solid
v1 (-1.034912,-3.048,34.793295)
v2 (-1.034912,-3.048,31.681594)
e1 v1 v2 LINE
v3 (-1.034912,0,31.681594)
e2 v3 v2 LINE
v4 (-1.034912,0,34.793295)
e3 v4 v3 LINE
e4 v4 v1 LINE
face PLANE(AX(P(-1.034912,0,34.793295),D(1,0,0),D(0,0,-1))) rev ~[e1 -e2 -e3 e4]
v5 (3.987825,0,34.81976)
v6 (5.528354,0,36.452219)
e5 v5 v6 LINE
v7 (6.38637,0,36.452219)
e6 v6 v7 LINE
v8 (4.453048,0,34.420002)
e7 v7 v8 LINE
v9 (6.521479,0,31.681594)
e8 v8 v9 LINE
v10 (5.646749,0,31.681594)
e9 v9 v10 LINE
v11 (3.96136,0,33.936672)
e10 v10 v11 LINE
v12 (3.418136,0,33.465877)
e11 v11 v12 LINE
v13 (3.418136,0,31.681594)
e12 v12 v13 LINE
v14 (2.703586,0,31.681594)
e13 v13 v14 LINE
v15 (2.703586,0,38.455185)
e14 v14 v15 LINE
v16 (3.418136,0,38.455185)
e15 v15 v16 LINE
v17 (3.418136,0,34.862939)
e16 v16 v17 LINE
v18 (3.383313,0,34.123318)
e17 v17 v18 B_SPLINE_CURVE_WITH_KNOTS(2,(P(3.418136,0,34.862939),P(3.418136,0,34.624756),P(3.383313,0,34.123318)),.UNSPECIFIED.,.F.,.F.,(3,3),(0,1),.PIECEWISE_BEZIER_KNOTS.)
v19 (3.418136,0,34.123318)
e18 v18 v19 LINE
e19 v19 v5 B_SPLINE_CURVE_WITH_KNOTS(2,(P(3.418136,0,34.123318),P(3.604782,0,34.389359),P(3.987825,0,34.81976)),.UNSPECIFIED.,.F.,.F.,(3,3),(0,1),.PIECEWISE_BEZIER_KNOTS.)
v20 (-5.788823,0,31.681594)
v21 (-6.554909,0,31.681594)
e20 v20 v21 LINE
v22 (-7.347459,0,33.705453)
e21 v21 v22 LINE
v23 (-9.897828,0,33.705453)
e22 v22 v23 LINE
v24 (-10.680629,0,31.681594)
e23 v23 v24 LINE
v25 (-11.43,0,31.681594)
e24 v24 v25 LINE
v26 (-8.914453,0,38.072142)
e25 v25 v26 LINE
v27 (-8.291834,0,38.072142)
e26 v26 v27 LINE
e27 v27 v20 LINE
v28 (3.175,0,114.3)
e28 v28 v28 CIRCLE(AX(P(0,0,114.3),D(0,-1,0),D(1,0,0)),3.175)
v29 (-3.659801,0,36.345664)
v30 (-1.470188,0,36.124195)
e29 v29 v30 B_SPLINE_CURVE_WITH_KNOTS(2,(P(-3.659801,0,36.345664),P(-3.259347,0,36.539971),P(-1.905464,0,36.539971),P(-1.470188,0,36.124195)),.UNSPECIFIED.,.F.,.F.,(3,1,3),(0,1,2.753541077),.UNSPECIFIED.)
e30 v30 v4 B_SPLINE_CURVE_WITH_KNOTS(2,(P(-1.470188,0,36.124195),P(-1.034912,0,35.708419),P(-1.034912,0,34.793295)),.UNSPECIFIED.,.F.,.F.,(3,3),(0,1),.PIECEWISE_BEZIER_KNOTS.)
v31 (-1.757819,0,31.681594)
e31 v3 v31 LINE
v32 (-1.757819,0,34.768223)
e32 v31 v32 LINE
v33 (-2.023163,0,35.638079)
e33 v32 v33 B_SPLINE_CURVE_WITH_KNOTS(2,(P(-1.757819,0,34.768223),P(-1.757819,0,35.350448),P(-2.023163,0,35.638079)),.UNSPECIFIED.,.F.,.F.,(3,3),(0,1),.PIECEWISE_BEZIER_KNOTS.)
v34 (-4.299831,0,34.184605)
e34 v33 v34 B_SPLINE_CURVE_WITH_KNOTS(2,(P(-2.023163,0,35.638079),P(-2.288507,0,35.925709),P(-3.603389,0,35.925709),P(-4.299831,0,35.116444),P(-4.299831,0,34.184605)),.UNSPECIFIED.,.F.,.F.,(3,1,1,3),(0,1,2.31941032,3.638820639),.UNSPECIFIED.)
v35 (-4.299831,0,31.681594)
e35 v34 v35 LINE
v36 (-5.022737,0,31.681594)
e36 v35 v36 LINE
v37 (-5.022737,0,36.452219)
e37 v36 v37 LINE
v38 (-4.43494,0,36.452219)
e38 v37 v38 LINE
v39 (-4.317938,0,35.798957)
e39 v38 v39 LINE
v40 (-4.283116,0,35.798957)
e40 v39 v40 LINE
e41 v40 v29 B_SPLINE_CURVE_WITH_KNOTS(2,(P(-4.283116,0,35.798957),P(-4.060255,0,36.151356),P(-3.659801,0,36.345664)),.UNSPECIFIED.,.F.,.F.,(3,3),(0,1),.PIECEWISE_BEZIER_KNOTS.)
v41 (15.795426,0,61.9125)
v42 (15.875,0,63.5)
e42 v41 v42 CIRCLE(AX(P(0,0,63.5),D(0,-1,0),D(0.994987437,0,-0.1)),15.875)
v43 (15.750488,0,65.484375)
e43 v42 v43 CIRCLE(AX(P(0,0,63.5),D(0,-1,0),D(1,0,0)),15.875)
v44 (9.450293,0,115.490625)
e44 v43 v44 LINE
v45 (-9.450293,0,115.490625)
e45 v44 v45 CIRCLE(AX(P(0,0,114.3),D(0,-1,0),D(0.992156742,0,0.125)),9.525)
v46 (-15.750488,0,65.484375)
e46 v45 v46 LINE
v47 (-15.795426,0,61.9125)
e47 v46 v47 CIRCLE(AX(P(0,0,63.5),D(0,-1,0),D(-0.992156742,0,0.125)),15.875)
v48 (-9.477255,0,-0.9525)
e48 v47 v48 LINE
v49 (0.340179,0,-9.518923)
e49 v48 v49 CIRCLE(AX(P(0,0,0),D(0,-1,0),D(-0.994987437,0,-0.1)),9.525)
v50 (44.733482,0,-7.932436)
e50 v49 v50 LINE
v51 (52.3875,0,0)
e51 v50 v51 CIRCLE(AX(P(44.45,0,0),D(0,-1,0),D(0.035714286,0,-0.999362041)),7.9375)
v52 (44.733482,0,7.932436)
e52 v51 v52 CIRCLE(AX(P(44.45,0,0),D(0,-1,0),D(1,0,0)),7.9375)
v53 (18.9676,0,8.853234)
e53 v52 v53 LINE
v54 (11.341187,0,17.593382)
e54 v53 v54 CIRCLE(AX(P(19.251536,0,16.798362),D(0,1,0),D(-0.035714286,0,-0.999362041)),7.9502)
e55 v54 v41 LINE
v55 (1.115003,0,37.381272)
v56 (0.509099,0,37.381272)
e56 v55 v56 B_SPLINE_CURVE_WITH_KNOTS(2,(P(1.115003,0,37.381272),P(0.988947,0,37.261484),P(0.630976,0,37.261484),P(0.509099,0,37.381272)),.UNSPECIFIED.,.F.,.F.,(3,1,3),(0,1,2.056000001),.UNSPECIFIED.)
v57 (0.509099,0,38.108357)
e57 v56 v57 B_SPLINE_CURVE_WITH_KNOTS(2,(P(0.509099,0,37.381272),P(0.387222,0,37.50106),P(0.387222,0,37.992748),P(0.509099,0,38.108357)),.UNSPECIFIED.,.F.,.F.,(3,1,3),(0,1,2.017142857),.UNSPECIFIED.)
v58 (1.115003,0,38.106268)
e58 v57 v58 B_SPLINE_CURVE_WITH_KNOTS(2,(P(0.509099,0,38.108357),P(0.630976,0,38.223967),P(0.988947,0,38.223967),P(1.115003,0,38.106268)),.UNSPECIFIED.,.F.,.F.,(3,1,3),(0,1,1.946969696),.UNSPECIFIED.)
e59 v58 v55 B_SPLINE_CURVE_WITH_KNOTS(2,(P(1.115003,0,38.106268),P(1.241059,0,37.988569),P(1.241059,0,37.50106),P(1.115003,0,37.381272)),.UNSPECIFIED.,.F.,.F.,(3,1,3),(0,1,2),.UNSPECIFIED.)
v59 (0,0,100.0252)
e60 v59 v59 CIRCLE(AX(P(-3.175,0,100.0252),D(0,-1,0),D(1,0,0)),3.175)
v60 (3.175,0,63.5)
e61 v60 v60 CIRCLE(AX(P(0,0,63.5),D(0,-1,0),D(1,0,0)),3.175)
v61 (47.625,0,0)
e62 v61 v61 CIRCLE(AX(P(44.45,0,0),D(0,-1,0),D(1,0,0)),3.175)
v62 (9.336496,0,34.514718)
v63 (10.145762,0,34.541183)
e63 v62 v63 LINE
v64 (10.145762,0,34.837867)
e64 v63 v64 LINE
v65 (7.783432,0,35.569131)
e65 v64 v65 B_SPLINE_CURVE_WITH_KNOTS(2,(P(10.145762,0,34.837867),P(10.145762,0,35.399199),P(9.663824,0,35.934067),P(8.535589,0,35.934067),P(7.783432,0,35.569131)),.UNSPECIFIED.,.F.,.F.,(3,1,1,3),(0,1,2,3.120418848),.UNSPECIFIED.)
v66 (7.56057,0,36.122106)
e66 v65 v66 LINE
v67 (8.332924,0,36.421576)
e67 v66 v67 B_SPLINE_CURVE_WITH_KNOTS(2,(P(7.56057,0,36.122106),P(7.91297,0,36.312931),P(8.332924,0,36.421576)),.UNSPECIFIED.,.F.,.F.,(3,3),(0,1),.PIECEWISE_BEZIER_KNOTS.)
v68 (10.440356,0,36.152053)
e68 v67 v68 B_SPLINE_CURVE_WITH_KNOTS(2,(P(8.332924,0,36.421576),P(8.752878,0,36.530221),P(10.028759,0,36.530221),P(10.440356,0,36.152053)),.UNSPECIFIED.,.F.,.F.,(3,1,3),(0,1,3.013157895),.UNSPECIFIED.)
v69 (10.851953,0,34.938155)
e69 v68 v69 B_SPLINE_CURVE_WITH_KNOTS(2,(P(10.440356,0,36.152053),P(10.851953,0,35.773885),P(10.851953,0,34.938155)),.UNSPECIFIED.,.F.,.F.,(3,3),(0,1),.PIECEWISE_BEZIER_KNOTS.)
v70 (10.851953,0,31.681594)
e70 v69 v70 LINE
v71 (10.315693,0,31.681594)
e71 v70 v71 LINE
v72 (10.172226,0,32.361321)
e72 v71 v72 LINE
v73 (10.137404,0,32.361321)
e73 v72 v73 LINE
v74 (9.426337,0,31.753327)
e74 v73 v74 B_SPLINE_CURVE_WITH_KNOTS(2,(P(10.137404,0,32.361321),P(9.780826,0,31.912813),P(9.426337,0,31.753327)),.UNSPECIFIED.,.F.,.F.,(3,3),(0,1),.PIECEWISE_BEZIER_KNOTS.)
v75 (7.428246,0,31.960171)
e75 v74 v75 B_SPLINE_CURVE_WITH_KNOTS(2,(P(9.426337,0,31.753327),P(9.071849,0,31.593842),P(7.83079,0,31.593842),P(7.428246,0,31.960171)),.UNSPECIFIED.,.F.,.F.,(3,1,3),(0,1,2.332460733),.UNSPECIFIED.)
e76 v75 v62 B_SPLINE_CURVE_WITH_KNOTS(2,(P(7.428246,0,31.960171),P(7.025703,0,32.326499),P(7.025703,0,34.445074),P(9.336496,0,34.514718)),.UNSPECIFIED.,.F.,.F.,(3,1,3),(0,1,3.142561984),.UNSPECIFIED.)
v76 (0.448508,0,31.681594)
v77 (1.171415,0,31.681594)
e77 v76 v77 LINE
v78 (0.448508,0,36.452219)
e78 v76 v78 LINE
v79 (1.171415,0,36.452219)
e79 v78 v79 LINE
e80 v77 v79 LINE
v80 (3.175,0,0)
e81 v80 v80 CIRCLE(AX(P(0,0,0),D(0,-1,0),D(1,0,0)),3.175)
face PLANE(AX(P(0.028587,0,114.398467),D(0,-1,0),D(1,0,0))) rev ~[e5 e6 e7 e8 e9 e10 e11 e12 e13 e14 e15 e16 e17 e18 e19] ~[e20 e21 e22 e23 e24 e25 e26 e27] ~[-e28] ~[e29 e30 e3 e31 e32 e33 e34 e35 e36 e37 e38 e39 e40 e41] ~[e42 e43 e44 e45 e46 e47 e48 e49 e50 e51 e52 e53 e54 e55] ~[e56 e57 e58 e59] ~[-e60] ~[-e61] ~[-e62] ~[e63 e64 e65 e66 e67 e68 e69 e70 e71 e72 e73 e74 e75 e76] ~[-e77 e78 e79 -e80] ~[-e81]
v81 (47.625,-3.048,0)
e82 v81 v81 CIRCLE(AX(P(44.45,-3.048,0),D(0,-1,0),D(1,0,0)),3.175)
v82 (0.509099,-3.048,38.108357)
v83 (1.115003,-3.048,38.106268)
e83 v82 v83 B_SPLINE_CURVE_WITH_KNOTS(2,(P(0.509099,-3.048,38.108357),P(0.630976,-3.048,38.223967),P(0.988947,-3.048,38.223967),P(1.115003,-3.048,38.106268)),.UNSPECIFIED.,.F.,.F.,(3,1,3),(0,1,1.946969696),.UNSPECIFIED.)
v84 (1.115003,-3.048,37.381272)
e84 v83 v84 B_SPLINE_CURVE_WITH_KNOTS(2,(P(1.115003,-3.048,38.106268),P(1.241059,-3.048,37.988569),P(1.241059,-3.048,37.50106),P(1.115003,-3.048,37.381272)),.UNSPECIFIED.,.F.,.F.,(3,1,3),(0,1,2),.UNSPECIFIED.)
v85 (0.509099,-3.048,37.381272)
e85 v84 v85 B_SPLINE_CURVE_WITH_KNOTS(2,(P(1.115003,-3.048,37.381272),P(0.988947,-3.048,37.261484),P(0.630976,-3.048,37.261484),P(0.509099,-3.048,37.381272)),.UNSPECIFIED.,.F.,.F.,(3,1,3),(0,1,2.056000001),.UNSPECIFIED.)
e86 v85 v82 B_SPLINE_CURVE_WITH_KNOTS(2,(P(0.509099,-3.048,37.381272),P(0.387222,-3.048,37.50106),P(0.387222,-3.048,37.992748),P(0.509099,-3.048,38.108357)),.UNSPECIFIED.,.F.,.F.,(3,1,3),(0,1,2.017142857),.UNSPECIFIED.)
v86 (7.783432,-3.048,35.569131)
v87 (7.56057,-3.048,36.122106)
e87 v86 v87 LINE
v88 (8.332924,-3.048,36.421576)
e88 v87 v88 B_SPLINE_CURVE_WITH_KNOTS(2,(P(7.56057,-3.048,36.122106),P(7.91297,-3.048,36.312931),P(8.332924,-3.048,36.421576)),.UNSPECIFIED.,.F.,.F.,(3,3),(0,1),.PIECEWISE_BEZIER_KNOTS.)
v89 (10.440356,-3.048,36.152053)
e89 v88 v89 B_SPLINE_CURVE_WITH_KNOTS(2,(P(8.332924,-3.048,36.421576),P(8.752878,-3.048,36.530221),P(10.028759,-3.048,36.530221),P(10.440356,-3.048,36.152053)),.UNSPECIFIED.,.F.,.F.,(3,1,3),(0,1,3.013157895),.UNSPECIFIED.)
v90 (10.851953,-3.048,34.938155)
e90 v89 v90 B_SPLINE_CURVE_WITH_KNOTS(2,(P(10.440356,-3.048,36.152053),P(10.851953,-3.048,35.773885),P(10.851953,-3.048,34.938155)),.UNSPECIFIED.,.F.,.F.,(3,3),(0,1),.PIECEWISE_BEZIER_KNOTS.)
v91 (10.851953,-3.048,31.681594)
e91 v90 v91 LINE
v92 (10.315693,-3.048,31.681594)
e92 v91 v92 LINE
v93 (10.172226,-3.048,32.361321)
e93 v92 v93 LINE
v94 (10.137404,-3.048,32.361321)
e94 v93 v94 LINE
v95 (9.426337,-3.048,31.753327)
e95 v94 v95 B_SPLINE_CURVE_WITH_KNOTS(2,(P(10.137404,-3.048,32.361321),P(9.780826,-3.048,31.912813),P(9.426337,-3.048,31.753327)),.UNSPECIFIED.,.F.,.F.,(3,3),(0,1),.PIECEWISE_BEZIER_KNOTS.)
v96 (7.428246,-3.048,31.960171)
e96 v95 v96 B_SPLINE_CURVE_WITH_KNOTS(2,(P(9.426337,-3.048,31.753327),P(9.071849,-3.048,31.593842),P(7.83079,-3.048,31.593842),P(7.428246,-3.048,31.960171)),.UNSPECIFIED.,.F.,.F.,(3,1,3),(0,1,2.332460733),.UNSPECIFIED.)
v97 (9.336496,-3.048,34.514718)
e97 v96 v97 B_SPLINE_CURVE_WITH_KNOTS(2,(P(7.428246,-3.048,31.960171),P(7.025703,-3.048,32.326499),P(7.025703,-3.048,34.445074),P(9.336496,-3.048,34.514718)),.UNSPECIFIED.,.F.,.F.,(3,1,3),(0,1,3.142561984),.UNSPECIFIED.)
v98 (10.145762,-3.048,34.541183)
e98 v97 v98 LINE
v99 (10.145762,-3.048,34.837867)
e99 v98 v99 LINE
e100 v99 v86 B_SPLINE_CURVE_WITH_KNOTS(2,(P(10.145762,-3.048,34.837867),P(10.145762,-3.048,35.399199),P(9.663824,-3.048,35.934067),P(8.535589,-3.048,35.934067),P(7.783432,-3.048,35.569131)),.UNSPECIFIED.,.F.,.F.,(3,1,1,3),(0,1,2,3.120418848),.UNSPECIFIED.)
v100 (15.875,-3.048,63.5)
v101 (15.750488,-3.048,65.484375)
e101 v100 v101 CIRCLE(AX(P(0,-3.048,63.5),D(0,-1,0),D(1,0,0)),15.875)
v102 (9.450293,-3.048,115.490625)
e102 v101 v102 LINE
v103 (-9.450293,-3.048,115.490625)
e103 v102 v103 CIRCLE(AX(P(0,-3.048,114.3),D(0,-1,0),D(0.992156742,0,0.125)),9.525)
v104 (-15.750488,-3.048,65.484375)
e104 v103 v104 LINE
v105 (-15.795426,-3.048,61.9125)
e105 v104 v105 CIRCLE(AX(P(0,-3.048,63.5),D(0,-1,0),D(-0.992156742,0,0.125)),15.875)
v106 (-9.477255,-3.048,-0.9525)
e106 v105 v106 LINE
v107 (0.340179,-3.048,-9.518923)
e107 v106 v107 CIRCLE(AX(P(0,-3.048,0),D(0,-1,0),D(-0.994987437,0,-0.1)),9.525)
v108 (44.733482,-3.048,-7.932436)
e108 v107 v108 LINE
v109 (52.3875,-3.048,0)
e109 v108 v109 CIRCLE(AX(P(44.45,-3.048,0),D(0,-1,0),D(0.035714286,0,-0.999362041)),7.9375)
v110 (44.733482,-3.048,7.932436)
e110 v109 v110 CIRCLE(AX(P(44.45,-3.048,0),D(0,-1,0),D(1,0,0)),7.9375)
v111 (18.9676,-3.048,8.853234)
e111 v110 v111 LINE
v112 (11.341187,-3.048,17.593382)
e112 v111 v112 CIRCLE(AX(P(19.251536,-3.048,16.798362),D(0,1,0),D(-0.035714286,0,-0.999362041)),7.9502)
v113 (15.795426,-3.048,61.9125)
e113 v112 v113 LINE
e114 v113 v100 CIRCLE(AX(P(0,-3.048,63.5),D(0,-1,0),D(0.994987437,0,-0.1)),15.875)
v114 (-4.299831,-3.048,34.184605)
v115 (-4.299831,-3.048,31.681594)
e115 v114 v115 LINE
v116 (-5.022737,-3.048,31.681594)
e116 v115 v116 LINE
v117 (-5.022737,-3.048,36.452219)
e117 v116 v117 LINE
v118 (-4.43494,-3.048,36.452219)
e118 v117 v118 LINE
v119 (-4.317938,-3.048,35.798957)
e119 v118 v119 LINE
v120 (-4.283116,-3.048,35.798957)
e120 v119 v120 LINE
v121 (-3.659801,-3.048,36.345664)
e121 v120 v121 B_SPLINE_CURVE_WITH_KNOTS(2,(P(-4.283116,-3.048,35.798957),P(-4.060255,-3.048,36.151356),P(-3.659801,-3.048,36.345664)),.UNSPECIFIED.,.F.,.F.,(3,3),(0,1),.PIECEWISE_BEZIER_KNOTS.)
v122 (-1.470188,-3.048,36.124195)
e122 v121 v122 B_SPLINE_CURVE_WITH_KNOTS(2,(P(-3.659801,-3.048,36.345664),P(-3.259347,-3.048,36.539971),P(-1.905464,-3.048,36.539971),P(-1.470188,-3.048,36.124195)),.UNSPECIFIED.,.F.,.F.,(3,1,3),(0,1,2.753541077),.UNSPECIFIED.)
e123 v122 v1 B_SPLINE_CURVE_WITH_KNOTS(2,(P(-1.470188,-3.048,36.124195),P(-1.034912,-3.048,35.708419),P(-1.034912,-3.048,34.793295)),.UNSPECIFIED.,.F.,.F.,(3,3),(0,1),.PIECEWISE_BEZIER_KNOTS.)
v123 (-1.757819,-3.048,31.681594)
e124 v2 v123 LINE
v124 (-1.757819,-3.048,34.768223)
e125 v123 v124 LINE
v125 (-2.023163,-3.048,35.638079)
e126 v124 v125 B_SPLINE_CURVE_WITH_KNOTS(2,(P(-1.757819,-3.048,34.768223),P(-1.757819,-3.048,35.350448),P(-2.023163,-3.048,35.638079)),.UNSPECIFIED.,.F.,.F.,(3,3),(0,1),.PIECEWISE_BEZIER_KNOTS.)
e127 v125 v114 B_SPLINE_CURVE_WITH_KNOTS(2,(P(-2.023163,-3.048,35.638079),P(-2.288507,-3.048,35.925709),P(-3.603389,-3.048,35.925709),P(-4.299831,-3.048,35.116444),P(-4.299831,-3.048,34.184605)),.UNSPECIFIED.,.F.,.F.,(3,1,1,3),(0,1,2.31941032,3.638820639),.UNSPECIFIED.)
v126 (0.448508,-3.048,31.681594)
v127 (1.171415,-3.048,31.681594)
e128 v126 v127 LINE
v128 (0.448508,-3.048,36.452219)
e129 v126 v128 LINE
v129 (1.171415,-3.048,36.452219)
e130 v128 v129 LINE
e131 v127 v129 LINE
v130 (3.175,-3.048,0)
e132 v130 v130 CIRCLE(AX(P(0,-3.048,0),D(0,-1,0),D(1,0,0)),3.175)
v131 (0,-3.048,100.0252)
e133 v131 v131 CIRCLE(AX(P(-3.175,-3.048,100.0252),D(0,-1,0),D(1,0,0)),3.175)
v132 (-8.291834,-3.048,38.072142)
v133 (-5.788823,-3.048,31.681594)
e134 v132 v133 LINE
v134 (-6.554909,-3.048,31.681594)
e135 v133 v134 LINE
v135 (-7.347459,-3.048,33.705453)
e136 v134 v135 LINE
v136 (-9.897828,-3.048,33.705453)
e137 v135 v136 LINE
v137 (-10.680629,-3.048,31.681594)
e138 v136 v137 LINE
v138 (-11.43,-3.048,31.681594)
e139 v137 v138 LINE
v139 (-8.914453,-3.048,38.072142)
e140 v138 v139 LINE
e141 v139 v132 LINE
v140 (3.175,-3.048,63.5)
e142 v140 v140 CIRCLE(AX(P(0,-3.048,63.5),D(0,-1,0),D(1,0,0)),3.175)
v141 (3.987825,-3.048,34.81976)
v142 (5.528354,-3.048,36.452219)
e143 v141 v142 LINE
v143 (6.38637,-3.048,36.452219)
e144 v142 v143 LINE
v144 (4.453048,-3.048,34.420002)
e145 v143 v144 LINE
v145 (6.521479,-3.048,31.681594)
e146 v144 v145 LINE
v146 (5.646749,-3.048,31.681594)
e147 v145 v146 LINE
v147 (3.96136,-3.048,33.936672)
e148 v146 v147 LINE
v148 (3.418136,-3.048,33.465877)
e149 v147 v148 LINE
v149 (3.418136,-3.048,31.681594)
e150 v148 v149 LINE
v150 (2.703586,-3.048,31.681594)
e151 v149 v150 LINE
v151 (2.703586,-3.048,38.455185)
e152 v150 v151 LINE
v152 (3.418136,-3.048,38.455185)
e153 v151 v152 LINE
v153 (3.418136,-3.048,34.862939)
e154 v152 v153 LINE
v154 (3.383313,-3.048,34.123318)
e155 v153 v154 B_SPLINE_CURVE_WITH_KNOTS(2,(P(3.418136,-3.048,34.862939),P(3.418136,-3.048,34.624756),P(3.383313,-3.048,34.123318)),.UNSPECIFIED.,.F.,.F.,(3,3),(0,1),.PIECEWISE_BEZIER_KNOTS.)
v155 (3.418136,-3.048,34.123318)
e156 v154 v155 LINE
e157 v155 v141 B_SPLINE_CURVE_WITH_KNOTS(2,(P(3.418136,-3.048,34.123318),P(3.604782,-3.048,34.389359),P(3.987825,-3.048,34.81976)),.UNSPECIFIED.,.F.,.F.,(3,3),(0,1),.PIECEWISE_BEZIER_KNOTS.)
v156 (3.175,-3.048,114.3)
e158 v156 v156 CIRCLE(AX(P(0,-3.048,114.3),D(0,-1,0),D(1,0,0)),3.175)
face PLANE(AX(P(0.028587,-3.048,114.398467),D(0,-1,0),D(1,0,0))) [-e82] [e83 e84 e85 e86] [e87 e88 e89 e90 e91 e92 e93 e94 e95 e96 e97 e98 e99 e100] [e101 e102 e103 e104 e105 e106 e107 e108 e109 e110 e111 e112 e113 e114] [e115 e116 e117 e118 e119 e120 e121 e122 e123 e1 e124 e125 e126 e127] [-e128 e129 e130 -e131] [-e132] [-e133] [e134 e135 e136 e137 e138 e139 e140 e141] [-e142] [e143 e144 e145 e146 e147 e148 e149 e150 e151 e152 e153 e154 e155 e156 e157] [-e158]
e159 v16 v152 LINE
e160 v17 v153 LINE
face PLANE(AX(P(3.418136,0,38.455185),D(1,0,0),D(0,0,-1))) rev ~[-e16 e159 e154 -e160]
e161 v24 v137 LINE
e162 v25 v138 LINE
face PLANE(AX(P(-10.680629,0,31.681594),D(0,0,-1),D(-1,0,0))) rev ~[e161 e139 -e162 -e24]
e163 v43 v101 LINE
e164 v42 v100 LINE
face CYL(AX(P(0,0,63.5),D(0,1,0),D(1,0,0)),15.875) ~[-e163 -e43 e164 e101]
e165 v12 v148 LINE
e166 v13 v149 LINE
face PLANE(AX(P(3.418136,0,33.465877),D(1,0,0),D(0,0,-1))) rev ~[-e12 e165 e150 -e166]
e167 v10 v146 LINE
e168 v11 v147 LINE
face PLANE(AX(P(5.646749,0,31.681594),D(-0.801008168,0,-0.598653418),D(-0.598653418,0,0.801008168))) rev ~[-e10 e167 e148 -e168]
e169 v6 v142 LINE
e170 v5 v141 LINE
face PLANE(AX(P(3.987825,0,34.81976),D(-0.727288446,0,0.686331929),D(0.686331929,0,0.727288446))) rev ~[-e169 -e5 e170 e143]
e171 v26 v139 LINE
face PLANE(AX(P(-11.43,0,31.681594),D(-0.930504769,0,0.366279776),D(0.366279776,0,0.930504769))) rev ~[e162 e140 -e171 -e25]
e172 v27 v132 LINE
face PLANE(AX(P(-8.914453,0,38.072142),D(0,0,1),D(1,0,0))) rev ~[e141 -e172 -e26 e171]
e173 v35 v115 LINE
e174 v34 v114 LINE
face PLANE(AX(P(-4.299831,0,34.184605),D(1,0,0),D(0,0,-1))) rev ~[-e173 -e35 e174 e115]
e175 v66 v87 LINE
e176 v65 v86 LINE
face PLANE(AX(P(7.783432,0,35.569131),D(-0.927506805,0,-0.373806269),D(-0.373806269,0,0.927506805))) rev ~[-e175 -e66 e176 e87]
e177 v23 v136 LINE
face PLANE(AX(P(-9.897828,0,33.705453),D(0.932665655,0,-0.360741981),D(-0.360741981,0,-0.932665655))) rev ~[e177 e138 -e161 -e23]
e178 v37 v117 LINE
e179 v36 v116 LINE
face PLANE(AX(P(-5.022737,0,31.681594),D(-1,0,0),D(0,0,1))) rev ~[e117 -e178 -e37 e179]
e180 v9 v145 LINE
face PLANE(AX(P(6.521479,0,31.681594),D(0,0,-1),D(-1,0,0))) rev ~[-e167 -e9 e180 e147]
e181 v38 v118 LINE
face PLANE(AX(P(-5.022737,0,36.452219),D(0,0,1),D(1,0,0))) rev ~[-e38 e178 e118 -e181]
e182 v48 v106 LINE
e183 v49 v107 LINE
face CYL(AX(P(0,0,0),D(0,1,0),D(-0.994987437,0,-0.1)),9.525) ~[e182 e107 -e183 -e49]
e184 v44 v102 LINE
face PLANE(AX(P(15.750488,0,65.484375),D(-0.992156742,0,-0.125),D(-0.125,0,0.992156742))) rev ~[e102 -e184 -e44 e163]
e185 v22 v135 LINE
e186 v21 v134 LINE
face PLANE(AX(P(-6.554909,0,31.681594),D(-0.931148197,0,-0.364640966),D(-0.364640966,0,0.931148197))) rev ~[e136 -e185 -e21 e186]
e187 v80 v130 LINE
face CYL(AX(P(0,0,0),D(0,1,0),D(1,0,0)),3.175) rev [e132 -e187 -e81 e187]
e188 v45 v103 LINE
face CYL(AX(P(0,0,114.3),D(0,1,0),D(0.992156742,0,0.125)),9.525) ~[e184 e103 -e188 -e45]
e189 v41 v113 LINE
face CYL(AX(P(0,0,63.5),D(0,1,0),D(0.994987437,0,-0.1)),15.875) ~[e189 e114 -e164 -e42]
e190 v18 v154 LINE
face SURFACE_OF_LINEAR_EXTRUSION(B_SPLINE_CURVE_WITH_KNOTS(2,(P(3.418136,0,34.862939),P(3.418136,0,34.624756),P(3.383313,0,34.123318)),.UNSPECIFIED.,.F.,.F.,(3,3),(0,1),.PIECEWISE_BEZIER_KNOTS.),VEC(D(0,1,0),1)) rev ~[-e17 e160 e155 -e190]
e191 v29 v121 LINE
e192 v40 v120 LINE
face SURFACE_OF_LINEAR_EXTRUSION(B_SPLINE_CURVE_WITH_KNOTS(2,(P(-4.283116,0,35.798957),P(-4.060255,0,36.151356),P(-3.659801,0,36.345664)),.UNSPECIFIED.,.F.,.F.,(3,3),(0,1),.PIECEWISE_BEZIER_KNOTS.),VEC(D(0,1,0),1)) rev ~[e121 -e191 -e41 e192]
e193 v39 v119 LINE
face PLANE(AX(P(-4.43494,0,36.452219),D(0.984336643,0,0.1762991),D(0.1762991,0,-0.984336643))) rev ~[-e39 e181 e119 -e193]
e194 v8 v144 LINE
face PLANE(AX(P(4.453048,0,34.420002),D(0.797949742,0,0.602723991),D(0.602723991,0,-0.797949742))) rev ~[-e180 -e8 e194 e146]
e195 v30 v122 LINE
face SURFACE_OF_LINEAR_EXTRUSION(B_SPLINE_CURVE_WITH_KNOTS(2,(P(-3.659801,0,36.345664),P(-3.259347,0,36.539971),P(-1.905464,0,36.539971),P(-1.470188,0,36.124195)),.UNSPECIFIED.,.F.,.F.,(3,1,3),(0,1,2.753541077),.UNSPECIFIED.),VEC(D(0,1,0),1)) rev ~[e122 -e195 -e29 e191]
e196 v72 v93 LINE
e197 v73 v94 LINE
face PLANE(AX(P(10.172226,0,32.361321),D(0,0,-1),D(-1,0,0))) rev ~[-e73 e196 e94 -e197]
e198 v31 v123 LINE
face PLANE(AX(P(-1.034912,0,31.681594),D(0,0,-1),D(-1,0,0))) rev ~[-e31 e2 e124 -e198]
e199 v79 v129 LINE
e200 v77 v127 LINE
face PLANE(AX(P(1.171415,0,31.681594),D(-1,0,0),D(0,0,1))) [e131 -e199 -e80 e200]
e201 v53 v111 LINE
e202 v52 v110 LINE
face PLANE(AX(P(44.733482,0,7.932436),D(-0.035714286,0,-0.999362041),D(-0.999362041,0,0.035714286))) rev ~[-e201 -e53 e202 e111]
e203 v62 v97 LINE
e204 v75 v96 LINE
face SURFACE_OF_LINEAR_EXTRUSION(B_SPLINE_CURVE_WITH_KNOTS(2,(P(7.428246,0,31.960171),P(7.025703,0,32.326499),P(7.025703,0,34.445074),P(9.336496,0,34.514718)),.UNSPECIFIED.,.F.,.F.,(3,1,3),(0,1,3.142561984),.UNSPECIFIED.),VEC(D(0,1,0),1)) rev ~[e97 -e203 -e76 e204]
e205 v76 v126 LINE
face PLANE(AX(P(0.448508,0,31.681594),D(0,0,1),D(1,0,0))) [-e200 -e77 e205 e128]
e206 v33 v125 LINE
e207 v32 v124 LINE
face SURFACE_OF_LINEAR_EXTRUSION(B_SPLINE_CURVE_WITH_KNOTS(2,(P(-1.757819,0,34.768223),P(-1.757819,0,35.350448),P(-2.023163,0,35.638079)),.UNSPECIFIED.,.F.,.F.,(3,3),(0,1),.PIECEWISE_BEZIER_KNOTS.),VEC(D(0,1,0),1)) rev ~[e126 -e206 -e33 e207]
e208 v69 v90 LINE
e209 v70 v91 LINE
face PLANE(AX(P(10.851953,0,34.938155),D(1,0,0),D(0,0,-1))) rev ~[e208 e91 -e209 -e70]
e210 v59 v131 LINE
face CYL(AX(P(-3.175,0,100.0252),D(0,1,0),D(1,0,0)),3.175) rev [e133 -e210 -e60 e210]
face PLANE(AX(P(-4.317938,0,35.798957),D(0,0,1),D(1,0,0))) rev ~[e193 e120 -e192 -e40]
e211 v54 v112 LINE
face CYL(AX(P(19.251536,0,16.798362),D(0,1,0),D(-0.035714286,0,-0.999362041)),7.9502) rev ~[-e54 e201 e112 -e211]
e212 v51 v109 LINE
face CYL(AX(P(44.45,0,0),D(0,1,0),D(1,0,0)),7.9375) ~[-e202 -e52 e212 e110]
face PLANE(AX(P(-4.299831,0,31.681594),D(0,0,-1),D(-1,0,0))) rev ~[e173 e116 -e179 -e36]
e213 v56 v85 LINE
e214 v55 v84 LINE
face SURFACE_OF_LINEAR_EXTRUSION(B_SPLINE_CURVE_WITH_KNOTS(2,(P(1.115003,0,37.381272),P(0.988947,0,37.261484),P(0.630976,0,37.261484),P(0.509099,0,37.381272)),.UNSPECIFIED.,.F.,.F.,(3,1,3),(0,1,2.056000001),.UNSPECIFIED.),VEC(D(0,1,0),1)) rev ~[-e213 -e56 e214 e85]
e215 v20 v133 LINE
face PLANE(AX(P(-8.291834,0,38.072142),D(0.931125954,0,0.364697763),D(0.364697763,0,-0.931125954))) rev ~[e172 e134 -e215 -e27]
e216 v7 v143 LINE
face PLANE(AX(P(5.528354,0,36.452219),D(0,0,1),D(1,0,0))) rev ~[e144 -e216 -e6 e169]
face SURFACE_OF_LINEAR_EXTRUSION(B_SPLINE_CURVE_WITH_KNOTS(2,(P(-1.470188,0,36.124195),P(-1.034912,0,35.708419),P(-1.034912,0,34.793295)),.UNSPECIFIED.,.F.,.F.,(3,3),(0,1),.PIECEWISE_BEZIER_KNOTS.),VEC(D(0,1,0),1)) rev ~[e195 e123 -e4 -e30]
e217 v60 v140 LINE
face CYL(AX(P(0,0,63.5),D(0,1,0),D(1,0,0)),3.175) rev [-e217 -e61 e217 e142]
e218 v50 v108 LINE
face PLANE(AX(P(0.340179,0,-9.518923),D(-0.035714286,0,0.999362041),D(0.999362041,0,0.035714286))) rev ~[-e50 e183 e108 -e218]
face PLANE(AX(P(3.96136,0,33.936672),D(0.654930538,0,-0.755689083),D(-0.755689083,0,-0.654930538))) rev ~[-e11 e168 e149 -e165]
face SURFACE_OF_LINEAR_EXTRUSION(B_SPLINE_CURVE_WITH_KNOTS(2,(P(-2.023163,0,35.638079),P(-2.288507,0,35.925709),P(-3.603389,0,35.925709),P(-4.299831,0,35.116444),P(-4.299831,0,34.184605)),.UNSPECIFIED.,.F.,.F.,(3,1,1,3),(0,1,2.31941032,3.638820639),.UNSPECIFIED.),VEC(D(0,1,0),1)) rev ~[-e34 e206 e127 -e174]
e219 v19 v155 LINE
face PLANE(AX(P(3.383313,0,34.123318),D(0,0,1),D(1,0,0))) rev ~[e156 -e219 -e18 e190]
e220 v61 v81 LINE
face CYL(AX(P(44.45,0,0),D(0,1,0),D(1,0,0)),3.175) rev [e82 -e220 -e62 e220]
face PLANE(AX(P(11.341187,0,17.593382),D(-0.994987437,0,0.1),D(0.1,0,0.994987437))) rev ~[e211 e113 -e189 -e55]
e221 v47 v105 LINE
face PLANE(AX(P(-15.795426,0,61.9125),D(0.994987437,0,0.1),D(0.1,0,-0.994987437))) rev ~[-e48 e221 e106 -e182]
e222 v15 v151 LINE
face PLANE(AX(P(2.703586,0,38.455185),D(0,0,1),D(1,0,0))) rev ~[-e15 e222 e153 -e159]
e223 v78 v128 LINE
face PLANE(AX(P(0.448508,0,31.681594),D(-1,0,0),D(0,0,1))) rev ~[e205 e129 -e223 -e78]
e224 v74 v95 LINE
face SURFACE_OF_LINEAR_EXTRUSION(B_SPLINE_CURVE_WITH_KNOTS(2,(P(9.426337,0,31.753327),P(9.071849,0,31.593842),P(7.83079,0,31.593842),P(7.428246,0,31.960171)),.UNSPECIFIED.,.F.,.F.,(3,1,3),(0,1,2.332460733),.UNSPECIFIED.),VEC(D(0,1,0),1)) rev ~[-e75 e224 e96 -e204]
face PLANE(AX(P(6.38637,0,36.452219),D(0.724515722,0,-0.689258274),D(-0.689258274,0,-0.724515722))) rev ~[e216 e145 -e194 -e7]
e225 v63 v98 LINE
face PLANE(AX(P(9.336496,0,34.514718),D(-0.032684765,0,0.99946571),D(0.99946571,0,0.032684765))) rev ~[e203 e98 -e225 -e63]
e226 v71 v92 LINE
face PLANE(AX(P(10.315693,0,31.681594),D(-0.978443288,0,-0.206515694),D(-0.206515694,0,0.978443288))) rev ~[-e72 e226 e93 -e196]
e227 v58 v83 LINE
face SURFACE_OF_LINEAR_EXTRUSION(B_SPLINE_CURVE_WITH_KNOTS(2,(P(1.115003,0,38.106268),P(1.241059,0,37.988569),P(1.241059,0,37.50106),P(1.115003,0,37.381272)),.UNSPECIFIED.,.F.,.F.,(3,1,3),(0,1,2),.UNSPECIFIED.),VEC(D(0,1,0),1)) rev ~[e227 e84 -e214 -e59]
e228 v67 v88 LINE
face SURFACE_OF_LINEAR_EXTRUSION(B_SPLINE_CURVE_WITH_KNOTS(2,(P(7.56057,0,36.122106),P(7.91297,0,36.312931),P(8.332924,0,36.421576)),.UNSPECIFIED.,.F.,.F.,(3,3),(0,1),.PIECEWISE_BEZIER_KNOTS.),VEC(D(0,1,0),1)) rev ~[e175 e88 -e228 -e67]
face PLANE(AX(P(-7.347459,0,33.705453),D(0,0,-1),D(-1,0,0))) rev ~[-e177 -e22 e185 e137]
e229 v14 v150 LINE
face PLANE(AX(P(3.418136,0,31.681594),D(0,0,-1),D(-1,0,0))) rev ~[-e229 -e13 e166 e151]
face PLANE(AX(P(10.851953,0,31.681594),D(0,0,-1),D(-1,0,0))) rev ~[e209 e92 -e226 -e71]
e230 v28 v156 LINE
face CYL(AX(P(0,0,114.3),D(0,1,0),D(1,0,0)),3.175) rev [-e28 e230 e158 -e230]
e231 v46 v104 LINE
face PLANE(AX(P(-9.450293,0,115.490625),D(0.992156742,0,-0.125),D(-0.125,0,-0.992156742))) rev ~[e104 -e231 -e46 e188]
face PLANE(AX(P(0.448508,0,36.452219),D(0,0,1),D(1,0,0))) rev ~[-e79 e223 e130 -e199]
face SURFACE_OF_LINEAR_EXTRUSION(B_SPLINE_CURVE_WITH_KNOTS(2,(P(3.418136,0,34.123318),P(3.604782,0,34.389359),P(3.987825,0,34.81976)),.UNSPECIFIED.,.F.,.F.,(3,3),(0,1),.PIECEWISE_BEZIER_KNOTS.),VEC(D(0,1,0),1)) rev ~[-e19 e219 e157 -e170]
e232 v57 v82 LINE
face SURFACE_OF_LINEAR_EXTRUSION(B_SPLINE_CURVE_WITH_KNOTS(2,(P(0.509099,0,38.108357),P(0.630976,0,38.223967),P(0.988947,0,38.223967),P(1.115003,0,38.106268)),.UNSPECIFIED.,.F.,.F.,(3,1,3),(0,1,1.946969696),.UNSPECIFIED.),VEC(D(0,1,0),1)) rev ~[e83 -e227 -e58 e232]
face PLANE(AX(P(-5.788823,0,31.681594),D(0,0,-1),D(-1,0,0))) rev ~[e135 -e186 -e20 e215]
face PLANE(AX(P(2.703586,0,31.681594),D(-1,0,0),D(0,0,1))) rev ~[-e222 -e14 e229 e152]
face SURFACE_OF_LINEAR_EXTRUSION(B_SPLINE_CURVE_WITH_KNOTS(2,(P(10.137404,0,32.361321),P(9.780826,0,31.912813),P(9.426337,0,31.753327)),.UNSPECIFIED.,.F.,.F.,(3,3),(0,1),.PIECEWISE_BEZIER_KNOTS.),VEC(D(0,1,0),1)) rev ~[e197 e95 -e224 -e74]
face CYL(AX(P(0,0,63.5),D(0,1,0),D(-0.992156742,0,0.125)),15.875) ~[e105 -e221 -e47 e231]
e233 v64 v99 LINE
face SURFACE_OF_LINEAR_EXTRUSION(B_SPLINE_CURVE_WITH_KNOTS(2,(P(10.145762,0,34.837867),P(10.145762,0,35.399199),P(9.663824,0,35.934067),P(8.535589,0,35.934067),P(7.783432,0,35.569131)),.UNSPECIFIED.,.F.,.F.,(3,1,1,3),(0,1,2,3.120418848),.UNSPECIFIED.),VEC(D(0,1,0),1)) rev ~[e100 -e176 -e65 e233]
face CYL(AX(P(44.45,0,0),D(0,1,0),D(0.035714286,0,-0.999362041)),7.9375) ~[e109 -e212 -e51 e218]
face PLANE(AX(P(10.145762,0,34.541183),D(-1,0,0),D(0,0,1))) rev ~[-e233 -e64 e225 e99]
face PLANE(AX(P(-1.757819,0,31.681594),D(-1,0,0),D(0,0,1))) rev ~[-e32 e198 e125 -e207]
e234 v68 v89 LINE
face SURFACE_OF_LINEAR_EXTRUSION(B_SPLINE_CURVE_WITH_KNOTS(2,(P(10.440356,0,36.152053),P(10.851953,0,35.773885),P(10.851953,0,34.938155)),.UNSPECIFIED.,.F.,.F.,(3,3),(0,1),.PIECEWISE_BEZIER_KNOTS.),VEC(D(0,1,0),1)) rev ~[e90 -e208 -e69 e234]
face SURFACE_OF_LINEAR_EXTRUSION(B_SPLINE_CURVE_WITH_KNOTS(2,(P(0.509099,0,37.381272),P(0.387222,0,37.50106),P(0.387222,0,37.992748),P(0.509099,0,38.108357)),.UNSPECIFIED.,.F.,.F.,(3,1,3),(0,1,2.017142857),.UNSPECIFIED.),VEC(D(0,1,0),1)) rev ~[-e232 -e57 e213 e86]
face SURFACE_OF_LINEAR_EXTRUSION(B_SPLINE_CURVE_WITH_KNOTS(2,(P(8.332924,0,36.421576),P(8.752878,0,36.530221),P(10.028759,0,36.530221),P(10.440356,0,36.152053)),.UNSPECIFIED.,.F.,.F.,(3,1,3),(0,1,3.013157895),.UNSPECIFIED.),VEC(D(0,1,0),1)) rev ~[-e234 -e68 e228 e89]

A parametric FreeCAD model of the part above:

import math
import FreeCAD as App
import Part
import Sketcher

V = App.Vector
Q = App.Units.Quantity

doc = App.newDocument("Part")
body = doc.addObject("PartDesign::Body", "Body")

sketch1 = body.newObject("Sketcher::SketchObject", "Sketch")
sketch1.AttachmentSupport = (doc.getObject("XZ_Plane"), [""])
sketch1.MapMode = "FlatFace"
sketch1.addGeometry([
    Part.ArcOfCircle(Part.Circle(V(0, 114.3, 0), V(0, 0, 1), 9.525), math.radians(7.180756), math.radians(172.819244)),
    Part.LineSegment(V(-9.450293, 115.490625, 0), V(-15.750488, 65.484375, 0)),
    Part.ArcOfCircle(Part.Circle(V(0, 63.5, 0), V(0, 0, 1), 15.875), math.radians(172.819244), math.radians(185.73917)),
    Part.LineSegment(V(-15.795426, 61.9125, 0), V(-9.477255, -0.9525, 0)),
    Part.ArcOfCircle(Part.Circle(V(0, 0, 0), V(0, 0, 1), 9.525), math.radians(-174.26083), math.radians(-87.953287)),
    Part.LineSegment(V(0.340179, -9.518923, 0), V(44.733482, -7.932436, 0)),
    Part.ArcOfCircle(Part.Circle(V(44.45, 0, 0), V(0, 0, 1), 7.9375), math.radians(-87.953287), math.radians(0)),
    Part.ArcOfCircle(Part.Circle(V(44.45, 0, 0), V(0, 0, 1), 7.9375), math.radians(0), math.radians(87.953287)),
    Part.LineSegment(V(44.733482, 7.932436, 0), V(18.9676, 8.853234, 0)),
    Part.ArcOfCircle(Part.Circle(V(19.251536, 16.798362, 0), V(0, 0, 1), 7.9502), math.radians(174.26083), math.radians(267.953287)),
    Part.LineSegment(V(11.341187, 17.593382, 0), V(15.795426, 61.9125, 0)),
    Part.ArcOfCircle(Part.Circle(V(0, 63.5, 0), V(0, 0, 1), 15.875), math.radians(-5.73917), math.radians(0)),
    Part.ArcOfCircle(Part.Circle(V(0, 63.5, 0), V(0, 0, 1), 15.875), math.radians(0), math.radians(7.180756)),
    Part.LineSegment(V(15.750488, 65.484375, 0), V(9.450293, 115.490625, 0)),
    Part.Circle(V(0, 0, 0), V(0, 0, 1), 3.175),
    Part.LineSegment(V(-8.291834, 38.072142, 0), V(-5.788823, 31.681594, 0)),
    Part.LineSegment(V(-5.788823, 31.681594, 0), V(-6.554909, 31.681594, 0)),
    Part.LineSegment(V(-6.554909, 31.681594, 0), V(-7.347459, 33.705453, 0)),
    Part.LineSegment(V(-7.347459, 33.705453, 0), V(-9.897828, 33.705453, 0)),
    Part.LineSegment(V(-9.897828, 33.705453, 0), V(-10.680629, 31.681594, 0)),
    Part.LineSegment(V(-10.680629, 31.681594, 0), V(-11.43, 31.681594, 0)),
    Part.LineSegment(V(-11.43, 31.681594, 0), V(-8.914453, 38.072142, 0)),
    Part.LineSegment(V(-8.914453, 38.072142, 0), V(-8.291834, 38.072142, 0)),
    Part.LineSegment(V(-1.034912, 34.793295, 0), V(-1.034912, 31.681594, 0)),
    Part.LineSegment(V(-1.034912, 31.681594, 0), V(-1.757819, 31.681594, 0)),
    Part.LineSegment(V(-1.757819, 31.681594, 0), V(-1.757819, 34.768223, 0)),
    Part.BSplineCurve([V(-1.757819, 34.768223, 0), V(-1.757819, 35.350448, 0), V(-2.023163, 35.638079, 0)], [3, 3], [0, 1], False, 2, [1, 1, 1], False),
    Part.BSplineCurve([V(-2.023163, 35.638079, 0), V(-2.288507, 35.925709, 0), V(-3.603389, 35.925709, 0), V(-4.299831, 35.116444, 0), V(-4.299831, 34.184605, 0)], [3, 1, 1, 3], [0, 1, 2.31941032, 3.638820639], False, 2, [1, 1, 1, 1, 1], False),
    Part.LineSegment(V(-4.299831, 34.184605, 0), V(-4.299831, 31.681594, 0)),
    Part.LineSegment(V(-4.299831, 31.681594, 0), V(-5.022737, 31.681594, 0)),
    Part.LineSegment(V(-5.022737, 31.681594, 0), V(-5.022737, 36.452219, 0)),
    Part.LineSegment(V(-5.022737, 36.452219, 0), V(-4.43494, 36.452219, 0)),
    Part.LineSegment(V(-4.43494, 36.452219, 0), V(-4.317938, 35.798957, 0)),
    Part.LineSegment(V(-4.317938, 35.798957, 0), V(-4.283116, 35.798957, 0)),
    Part.BSplineCurve([V(-4.283116, 35.798957, 0), V(-4.060255, 36.151356, 0), V(-3.659801, 36.345664, 0)], [3, 3], [0, 1], False, 2, [1, 1, 1], False),
    Part.BSplineCurve([V(-3.659801, 36.345664, 0), V(-3.259347, 36.539971, 0), V(-1.905464, 36.539971, 0), V(-1.470188, 36.124195, 0)], [3, 1, 3], [0, 1, 2.753541077], False, 2, [1, 1, 1, 1], False),
    Part.BSplineCurve([V(-1.470188, 36.124195, 0), V(-1.034912, 35.708419, 0), V(-1.034912, 34.793295, 0)], [3, 3], [0, 1], False, 2, [1, 1, 1], False),
    Part.LineSegment(V(1.171415, 31.681594, 0), V(0.448508, 31.681594, 0)),
    Part.LineSegment(V(0.448508, 31.681594, 0), V(0.448508, 36.452219, 0)),
    Part.LineSegment(V(0.448508, 36.452219, 0), V(1.171415, 36.452219, 0)),
    Part.LineSegment(V(1.171415, 36.452219, 0), V(1.171415, 31.681594, 0)),
    Part.BSplineCurve([V(1.115003, 37.381272, 0), V(0.988947, 37.261484, 0), V(0.630976, 37.261484, 0), V(0.509099, 37.381272, 0)], [3, 1, 3], [0, 1, 2.056000001], False, 2, [1, 1, 1, 1], False),
    Part.BSplineCurve([V(0.509099, 37.381272, 0), V(0.387222, 37.50106, 0), V(0.387222, 37.992748, 0), V(0.509099, 38.108357, 0)], [3, 1, 3], [0, 1, 2.017142857], False, 2, [1, 1, 1, 1], False),
    Part.BSplineCurve([V(0.509099, 38.108357, 0), V(0.630976, 38.223967, 0), V(0.988947, 38.223967, 0), V(1.115003, 38.106268, 0)], [3, 1, 3], [0, 1, 1.946969696], False, 2, [1, 1, 1, 1], False),
    Part.BSplineCurve([V(1.115003, 38.106268, 0), V(1.241059, 37.988569, 0), V(1.241059, 37.50106, 0), V(1.115003, 37.381272, 0)], [3, 1, 3], [0, 1, 2], False, 2, [1, 1, 1, 1], False),
    Part.LineSegment(V(10.851953, 34.938155, 0), V(10.851953, 31.681594, 0)),
    Part.LineSegment(V(10.851953, 31.681594, 0), V(10.315693, 31.681594, 0)),
    Part.LineSegment(V(10.315693, 31.681594, 0), V(10.172226, 32.361321, 0)),
    Part.LineSegment(V(10.172226, 32.361321, 0), V(10.137404, 32.361321, 0)),
    Part.BSplineCurve([V(10.137404, 32.361321, 0), V(9.780826, 31.912813, 0), V(9.426337, 31.753327, 0)], [3, 3], [0, 1], False, 2, [1, 1, 1], False),
    Part.BSplineCurve([V(9.426337, 31.753327, 0), V(9.071849, 31.593842, 0), V(7.83079, 31.593842, 0), V(7.428246, 31.960171, 0)], [3, 1, 3], [0, 1, 2.332460733], False, 2, [1, 1, 1, 1], False),
    Part.BSplineCurve([V(7.428246, 31.960171, 0), V(7.025703, 32.326499, 0), V(7.025703, 34.445074, 0), V(9.336496, 34.514718, 0)], [3, 1, 3], [0, 1, 3.142561984], False, 2, [1, 1, 1, 1], False),
    Part.LineSegment(V(9.336496, 34.514718, 0), V(10.145762, 34.541183, 0)),
    Part.LineSegment(V(10.145762, 34.541183, 0), V(10.145762, 34.837867, 0)),
    Part.BSplineCurve([V(10.145762, 34.837867, 0), V(10.145762, 35.399199, 0), V(9.663824, 35.934067, 0), V(8.535589, 35.934067, 0), V(7.783432, 35.569131, 0)], [3, 1, 1, 3], [0, 1, 2, 3.120418848], False, 2, [1, 1, 1, 1, 1], False),
    Part.LineSegment(V(7.783432, 35.569131, 0), V(7.56057, 36.122106, 0)),
    Part.BSplineCurve([V(7.56057, 36.122106, 0), V(7.91297, 36.312931, 0), V(8.332924, 36.421576, 0)], [3, 3], [0, 1], False, 2, [1, 1, 1], False),
    Part.BSplineCurve([V(8.332924, 36.421576, 0), V(8.752878, 36.530221, 0), V(10.028759, 36.530221, 0), V(10.440356, 36.152053, 0)], [3, 1, 3], [0, 1, 3.013157895], False, 2, [1, 1, 1, 1], False),
    Part.BSplineCurve([V(10.440356, 36.152053, 0), V(10.851953, 35.773885, 0), V(10.851953, 34.938155, 0)], [3, 3], [0, 1], False, 2, [1, 1, 1], False),
    Part.BSplineCurve([V(3.418136, 34.862939, 0), V(3.418136, 34.624756, 0), V(3.383313, 34.123318, 0)], [3, 3], [0, 1], False, 2, [1, 1, 1], False),
    Part.LineSegment(V(3.383313, 34.123318, 0), V(3.418136, 34.123318, 0)),
    Part.BSplineCurve([V(3.418136, 34.123318, 0), V(3.604782, 34.389359, 0), V(3.987825, 34.81976, 0)], [3, 3], [0, 1], False, 2, [1, 1, 1], False),
    Part.LineSegment(V(3.987825, 34.81976, 0), V(5.528354, 36.452219, 0)),
    Part.LineSegment(V(5.528354, 36.452219, 0), V(6.38637, 36.452219, 0)),
    Part.LineSegment(V(6.38637, 36.452219, 0), V(4.453048, 34.420002, 0)),
    Part.LineSegment(V(4.453048, 34.420002, 0), V(6.521479, 31.681594, 0)),
    Part.LineSegment(V(6.521479, 31.681594, 0), V(5.646749, 31.681594, 0)),
    Part.LineSegment(V(5.646749, 31.681594, 0), V(3.96136, 33.936672, 0)),
    Part.LineSegment(V(3.96136, 33.936672, 0), V(3.418136, 33.465877, 0)),
    Part.LineSegment(V(3.418136, 33.465877, 0), V(3.418136, 31.681594, 0)),
    Part.LineSegment(V(3.418136, 31.681594, 0), V(2.703586, 31.681594, 0)),
    Part.LineSegment(V(2.703586, 31.681594, 0), V(2.703586, 38.455185, 0)),
    Part.LineSegment(V(2.703586, 38.455185, 0), V(3.418136, 38.455185, 0)),
    Part.LineSegment(V(3.418136, 38.455185, 0), V(3.418136, 34.862939, 0)),
    Part.Circle(V(44.45, 0, 0), V(0, 0, 1), 3.175),
    Part.Circle(V(0, 63.5, 0), V(0, 0, 1), 3.175),
    Part.Circle(V(-3.175, 100.0252, 0), V(0, 0, 1), 3.175),
    Part.Circle(V(0, 114.3, 0), V(0, 0, 1), 3.175),
], False)
sketch1.addConstraint([
    Sketcher.Constraint("Block", 26),
    Sketcher.Constraint("Block", 27),
    Sketcher.Constraint("Block", 34),
    Sketcher.Constraint("Block", 35),
    Sketcher.Constraint("Block", 36),
    Sketcher.Constraint("Block", 41),
    Sketcher.Constraint("Block", 42),
    Sketcher.Constraint("Block", 43),
    Sketcher.Constraint("Block", 44),
    Sketcher.Constraint("Block", 49),
    Sketcher.Constraint("Block", 50),
    Sketcher.Constraint("Block", 51),
    Sketcher.Constraint("Block", 54),
    Sketcher.Constraint("Block", 56),
    Sketcher.Constraint("Block", 57),
    Sketcher.Constraint("Block", 58),
    Sketcher.Constraint("Block", 59),
    Sketcher.Constraint("Block", 61),
    Sketcher.Constraint("Coincident", 0, 2, 1, 1),
    Sketcher.Constraint("Coincident", 1, 2, 2, 1),
    Sketcher.Constraint("Coincident", 2, 2, 3, 1),
    Sketcher.Constraint("Coincident", 3, 2, 4, 1),
    Sketcher.Constraint("Coincident", 4, 2, 5, 1),
    Sketcher.Constraint("Coincident", 5, 2, 6, 1),
    Sketcher.Constraint("Coincident", 6, 2, 7, 1),
    Sketcher.Constraint("Coincident", 7, 2, 8, 1),
    Sketcher.Constraint("Coincident", 8, 2, 9, 2),
    Sketcher.Constraint("Coincident", 9, 1, 10, 1),
    Sketcher.Constraint("Coincident", 10, 2, 11, 1),
    Sketcher.Constraint("Coincident", 11, 2, 12, 1),
    Sketcher.Constraint("Coincident", 12, 2, 13, 1),
    Sketcher.Constraint("Coincident", 13, 2, 0, 1),
    Sketcher.Constraint("Coincident", 15, 2, 16, 1),
    Sketcher.Constraint("Coincident", 16, 2, 17, 1),
    Sketcher.Constraint("Coincident", 17, 2, 18, 1),
    Sketcher.Constraint("Coincident", 18, 2, 19, 1),
    Sketcher.Constraint("Coincident", 19, 2, 20, 1),
    Sketcher.Constraint("Coincident", 20, 2, 21, 1),
    Sketcher.Constraint("Coincident", 21, 2, 22, 1),
    Sketcher.Constraint("Coincident", 22, 2, 15, 1),
    Sketcher.Constraint("Coincident", 23, 2, 24, 1),
    Sketcher.Constraint("Coincident", 24, 2, 25, 1),
    Sketcher.Constraint("Coincident", 25, 2, 26, 1),
    Sketcher.Constraint("Coincident", 27, 2, 28, 1),
    Sketcher.Constraint("Coincident", 28, 2, 29, 1),
    Sketcher.Constraint("Coincident", 29, 2, 30, 1),
    Sketcher.Constraint("Coincident", 30, 2, 31, 1),
    Sketcher.Constraint("Coincident", 31, 2, 32, 1),
    Sketcher.Constraint("Coincident", 32, 2, 33, 1),
    Sketcher.Constraint("Coincident", 33, 2, 34, 1),
    Sketcher.Constraint("Coincident", 36, 2, 23, 1),
    Sketcher.Constraint("Coincident", 37, 2, 38, 1),
    Sketcher.Constraint("Coincident", 38, 2, 39, 1),
    Sketcher.Constraint("Coincident", 39, 2, 40, 1),
    Sketcher.Constraint("Coincident", 40, 2, 37, 1),
    Sketcher.Constraint("Coincident", 45, 2, 46, 1),
    Sketcher.Constraint("Coincident", 46, 2, 47, 1),
    Sketcher.Constraint("Coincident", 47, 2, 48, 1),
    Sketcher.Constraint("Coincident", 48, 2, 49, 1),
    Sketcher.Constraint("Coincident", 51, 2, 52, 1),
    Sketcher.Constraint("Coincident", 52, 2, 53, 1),
    Sketcher.Constraint("Coincident", 53, 2, 54, 1),
    Sketcher.Constraint("Coincident", 54, 2, 55, 1),
    Sketcher.Constraint("Coincident", 55, 2, 56, 1),
    Sketcher.Constraint("Coincident", 58, 2, 45, 1),
    Sketcher.Constraint("Coincident", 59, 2, 60, 1),
    Sketcher.Constraint("Coincident", 60, 2, 61, 1),
    Sketcher.Constraint("Coincident", 61, 2, 62, 1),
    Sketcher.Constraint("Coincident", 62, 2, 63, 1),
    Sketcher.Constraint("Coincident", 63, 2, 64, 1),
    Sketcher.Constraint("Coincident", 64, 2, 65, 1),
    Sketcher.Constraint("Coincident", 65, 2, 66, 1),
    Sketcher.Constraint("Coincident", 66, 2, 67, 1),
    Sketcher.Constraint("Coincident", 67, 2, 68, 1),
    Sketcher.Constraint("Coincident", 68, 2, 69, 1),
    Sketcher.Constraint("Coincident", 69, 2, 70, 1),
    Sketcher.Constraint("Coincident", 70, 2, 71, 1),
    Sketcher.Constraint("Coincident", 71, 2, 72, 1),
    Sketcher.Constraint("Coincident", 72, 2, 73, 1),
    Sketcher.Constraint("Coincident", 73, 2, 59, 1),
    Sketcher.Constraint("Horizontal", 16),
    Sketcher.Constraint("Horizontal", 18),
    Sketcher.Constraint("Horizontal", 20),
    Sketcher.Constraint("Horizontal", 22),
    Sketcher.Constraint("Vertical", 23),
    Sketcher.Constraint("Horizontal", 24),
    Sketcher.Constraint("Vertical", 25),
    Sketcher.Constraint("Vertical", 28),
    Sketcher.Constraint("Horizontal", 29),
    Sketcher.Constraint("Vertical", 30),
    Sketcher.Constraint("Horizontal", 31),
    Sketcher.Constraint("Horizontal", 33),
    Sketcher.Constraint("Horizontal", 37),
    Sketcher.Constraint("Vertical", 38),
    Sketcher.Constraint("Horizontal", 39),
    Sketcher.Constraint("Vertical", 40),
    Sketcher.Constraint("Vertical", 45),
    Sketcher.Constraint("Horizontal", 46),
    Sketcher.Constraint("Horizontal", 48),
    Sketcher.Constraint("Vertical", 53),
    Sketcher.Constraint("Horizontal", 63),
    Sketcher.Constraint("Horizontal", 66),
    Sketcher.Constraint("Vertical", 69),
    Sketcher.Constraint("Horizontal", 70),
    Sketcher.Constraint("Vertical", 71),
    Sketcher.Constraint("Horizontal", 72),
    Sketcher.Constraint("Vertical", 73),
    Sketcher.Constraint("Coincident", 4, 3, -1, 1),
    Sketcher.Constraint("Coincident", 14, 3, -1, 1),
    Sketcher.Constraint("Coincident", 7, 3, 6, 3),
    Sketcher.Constraint("Coincident", 11, 3, 2, 3),
    Sketcher.Constraint("Coincident", 12, 3, 2, 3),
    Sketcher.Constraint("Coincident", 74, 3, 6, 3),
    Sketcher.Constraint("Coincident", 75, 3, 2, 3),
    Sketcher.Constraint("Coincident", 77, 3, 0, 3),
    Sketcher.Constraint("PointOnObject", 0, 3, -2),
    Sketcher.Constraint("PointOnObject", 2, 3, -2),
    Sketcher.Constraint("PointOnObject", 6, 3, -1),
    Sketcher.Constraint("PointOnObject", 6, 2, -1),
    Sketcher.Constraint("Diameter", 14, Q("0.25 in")),
    Sketcher.Constraint("Diameter", 74, Q("0.25 in")),
    Sketcher.Constraint("Diameter", 75, Q("0.25 in")),
    Sketcher.Constraint("Diameter", 76, Q("0.25 in")),
    Sketcher.Constraint("Diameter", 77, Q("0.25 in")),
    Sketcher.Constraint("Radius", 0, Q("0.375 in")),
    Sketcher.Constraint("Radius", 2, Q("0.625 in")),
    Sketcher.Constraint("Radius", 4, Q("0.375 in")),
    Sketcher.Constraint("Radius", 6, Q("0.3125 in")),
    Sketcher.Constraint("Radius", 9, Q("0.313 in")),
    Sketcher.Constraint("Radius", 11, Q("0.625 in")),
    Sketcher.Constraint("DistanceY", -1, 1, 0, 3, Q("4.5 in")),
    Sketcher.Constraint("DistanceY", -1, 1, 2, 3, Q("2.5 in")),
    Sketcher.Constraint("DistanceY", -1, 1, 11, 2, Q("2.5 in")),
    Sketcher.Constraint("DistanceX", -1, 1, 6, 3, Q("1.75 in")),
    Sketcher.Constraint("DistanceX", 20, 2, -1, 1, Q("0.45 in")),
    Sketcher.Constraint("DistanceX", 76, 3, -1, 1, Q("0.125 in")),
    Sketcher.Constraint("DistanceY", -1, 1, 76, 3, Q("3.938 in")),
    Sketcher.Constraint("DistanceY", -1, 1, 0, 2, Q("4.546875 in")),
    Sketcher.Constraint("DistanceY", -1, 1, 1, 2, Q("2.578125 in")),
    Sketcher.Constraint("DistanceY", -1, 1, 2, 2, Q("2.4375 in")),
    Sketcher.Constraint("DistanceY", -1, 1, 10, 2, Q("2.4375 in")),
    Sketcher.Constraint("DistanceY", -1, 1, 12, 2, Q("2.578125 in")),
    Sketcher.Constraint("DistanceY", -1, 1, 13, 2, Q("4.546875 in")),
    Sketcher.Constraint("DistanceY", 23, 2, 23, 1, Q("3.111701 mm")),
    Sketcher.Constraint("DistanceY", 3, 2, -1, 1, Q("0.0375 in")),
    Sketcher.Constraint("Distance", 67, Q("2.8153 mm")),
    Sketcher.Constraint("DistanceX", 18, 2, 18, 1, Q("2.550369 mm")),
    Sketcher.Constraint("DistanceX", 20, 2, 20, 1, Q("0.749371 mm")),
    Sketcher.Constraint("DistanceX", 22, 1, 22, 2, Q("0.622619 mm")),
    Sketcher.Constraint("DistanceX", 46, 2, 46, 1, Q("0.53626 mm")),
    Sketcher.Constraint("DistanceX", 66, 2, 66, 1, Q("0.874731 mm")),
    Sketcher.Constraint("DistanceX", 70, 2, 70, 1, Q("0.714549 mm")),
    Sketcher.Constraint("DistanceX", 72, 1, 72, 2, Q("0.714549 mm")),
    Sketcher.Constraint("DistanceY", 28, 2, 28, 1, Q("2.503011 mm")),
    Sketcher.Constraint("DistanceY", 45, 2, 45, 1, Q("3.256561 mm")),
    Sketcher.Constraint("DistanceY", 71, 1, 71, 2, Q("6.773591 mm")),
    Sketcher.Constraint("DistanceX", -1, 1, 8, 2, Q("18.9676 mm")),
    Sketcher.Constraint("Distance", 8, Q("25.78233 mm")),
    Sketcher.Constraint("Distance", 10, Q("44.54239 mm")),
    Sketcher.Constraint("Distance", 15, Q("6.863248 mm")),
    Sketcher.Constraint("Distance", 17, Q("2.173509 mm")),
    Sketcher.Constraint("Distance", 21, Q("6.86783 mm")),
    Sketcher.Constraint("Distance", 64, Q("2.804931 mm")),
    Sketcher.Constraint("DistanceX", 16, 2, 16, 1, Q("0.766086 mm")),
    Sketcher.Constraint("DistanceX", 29, 2, 29, 1, Q("0.722906 mm")),
    Sketcher.Constraint("DistanceX", 31, 1, 31, 2, Q("0.587797 mm")),
    Sketcher.Constraint("DistanceX", 33, 1, 33, 2, Q("0.034822 mm")),
    Sketcher.Constraint("DistanceX", 37, 2, 37, 1, Q("0.722906 mm")),
    Sketcher.Constraint("DistanceX", 48, 2, 48, 1, Q("0.034822 mm")),
    Sketcher.Constraint("DistanceX", 63, 1, 63, 2, Q("0.858016 mm")),
    Sketcher.Constraint("DistanceY", 30, 1, 30, 2, Q("4.770625 mm")),
    Sketcher.Constraint("DistanceY", 38, 1, 38, 2, Q("4.770625 mm")),
    Sketcher.Constraint("DistanceY", 53, 1, 53, 2, Q("0.296684 mm")),
    Sketcher.Constraint("DistanceY", 69, 2, 69, 1, Q("1.784283 mm")),
    Sketcher.Constraint("DistanceY", 73, 2, 73, 1, Q("3.592246 mm")),
    Sketcher.Constraint("DistanceY", -1, 1, 9, 3, Q("16.798362 mm")),
    Sketcher.Constraint("DistanceX", -1, 1, 4, 2, Q("0.340179 mm")),
    Sketcher.Constraint("DistanceY", -1, 1, 9, 1, Q("17.593382 mm")),
    Sketcher.Constraint("DistanceX", 16, 2, -1, 1, Q("6.554909 mm")),
    Sketcher.Constraint("DistanceX", 17, 2, -1, 1, Q("7.347459 mm")),
    Sketcher.Constraint("DistanceX", -1, 1, 37, 2, Q("0.448508 mm")),
    Sketcher.Constraint("DistanceY", -1, 1, 38, 2, Q("36.452219 mm")),
    Sketcher.Constraint("DistanceY", -1, 1, 62, 2, Q("36.452219 mm")),
    Sketcher.Constraint("DistanceX", -1, 1, 63, 2, Q("6.38637 mm")),
    Sketcher.Constraint("DistanceX", -1, 1, 65, 2, Q("6.521479 mm")),
    Sketcher.Constraint("DistanceX", -1, 1, 67, 2, Q("3.96136 mm")),
    Sketcher.Constraint("DistanceY", -1, 1, 67, 2, Q("33.936672 mm")),
    Sketcher.Constraint("Distance", 5, Q("44.421643 mm")),
    Sketcher.Constraint("Distance", 19, Q("2.169973 mm")),
    Sketcher.Constraint("Distance", 65, Q("3.431806 mm")),
    Sketcher.Constraint("DistanceY", -1, 1, 15, 2, Q("31.681594 mm")),
])
pad1 = body.newObject("PartDesign::Pad", "Pad")
pad1.Profile = sketch1
pad1.Length = Q("0.12 in")

doc.recompute()
